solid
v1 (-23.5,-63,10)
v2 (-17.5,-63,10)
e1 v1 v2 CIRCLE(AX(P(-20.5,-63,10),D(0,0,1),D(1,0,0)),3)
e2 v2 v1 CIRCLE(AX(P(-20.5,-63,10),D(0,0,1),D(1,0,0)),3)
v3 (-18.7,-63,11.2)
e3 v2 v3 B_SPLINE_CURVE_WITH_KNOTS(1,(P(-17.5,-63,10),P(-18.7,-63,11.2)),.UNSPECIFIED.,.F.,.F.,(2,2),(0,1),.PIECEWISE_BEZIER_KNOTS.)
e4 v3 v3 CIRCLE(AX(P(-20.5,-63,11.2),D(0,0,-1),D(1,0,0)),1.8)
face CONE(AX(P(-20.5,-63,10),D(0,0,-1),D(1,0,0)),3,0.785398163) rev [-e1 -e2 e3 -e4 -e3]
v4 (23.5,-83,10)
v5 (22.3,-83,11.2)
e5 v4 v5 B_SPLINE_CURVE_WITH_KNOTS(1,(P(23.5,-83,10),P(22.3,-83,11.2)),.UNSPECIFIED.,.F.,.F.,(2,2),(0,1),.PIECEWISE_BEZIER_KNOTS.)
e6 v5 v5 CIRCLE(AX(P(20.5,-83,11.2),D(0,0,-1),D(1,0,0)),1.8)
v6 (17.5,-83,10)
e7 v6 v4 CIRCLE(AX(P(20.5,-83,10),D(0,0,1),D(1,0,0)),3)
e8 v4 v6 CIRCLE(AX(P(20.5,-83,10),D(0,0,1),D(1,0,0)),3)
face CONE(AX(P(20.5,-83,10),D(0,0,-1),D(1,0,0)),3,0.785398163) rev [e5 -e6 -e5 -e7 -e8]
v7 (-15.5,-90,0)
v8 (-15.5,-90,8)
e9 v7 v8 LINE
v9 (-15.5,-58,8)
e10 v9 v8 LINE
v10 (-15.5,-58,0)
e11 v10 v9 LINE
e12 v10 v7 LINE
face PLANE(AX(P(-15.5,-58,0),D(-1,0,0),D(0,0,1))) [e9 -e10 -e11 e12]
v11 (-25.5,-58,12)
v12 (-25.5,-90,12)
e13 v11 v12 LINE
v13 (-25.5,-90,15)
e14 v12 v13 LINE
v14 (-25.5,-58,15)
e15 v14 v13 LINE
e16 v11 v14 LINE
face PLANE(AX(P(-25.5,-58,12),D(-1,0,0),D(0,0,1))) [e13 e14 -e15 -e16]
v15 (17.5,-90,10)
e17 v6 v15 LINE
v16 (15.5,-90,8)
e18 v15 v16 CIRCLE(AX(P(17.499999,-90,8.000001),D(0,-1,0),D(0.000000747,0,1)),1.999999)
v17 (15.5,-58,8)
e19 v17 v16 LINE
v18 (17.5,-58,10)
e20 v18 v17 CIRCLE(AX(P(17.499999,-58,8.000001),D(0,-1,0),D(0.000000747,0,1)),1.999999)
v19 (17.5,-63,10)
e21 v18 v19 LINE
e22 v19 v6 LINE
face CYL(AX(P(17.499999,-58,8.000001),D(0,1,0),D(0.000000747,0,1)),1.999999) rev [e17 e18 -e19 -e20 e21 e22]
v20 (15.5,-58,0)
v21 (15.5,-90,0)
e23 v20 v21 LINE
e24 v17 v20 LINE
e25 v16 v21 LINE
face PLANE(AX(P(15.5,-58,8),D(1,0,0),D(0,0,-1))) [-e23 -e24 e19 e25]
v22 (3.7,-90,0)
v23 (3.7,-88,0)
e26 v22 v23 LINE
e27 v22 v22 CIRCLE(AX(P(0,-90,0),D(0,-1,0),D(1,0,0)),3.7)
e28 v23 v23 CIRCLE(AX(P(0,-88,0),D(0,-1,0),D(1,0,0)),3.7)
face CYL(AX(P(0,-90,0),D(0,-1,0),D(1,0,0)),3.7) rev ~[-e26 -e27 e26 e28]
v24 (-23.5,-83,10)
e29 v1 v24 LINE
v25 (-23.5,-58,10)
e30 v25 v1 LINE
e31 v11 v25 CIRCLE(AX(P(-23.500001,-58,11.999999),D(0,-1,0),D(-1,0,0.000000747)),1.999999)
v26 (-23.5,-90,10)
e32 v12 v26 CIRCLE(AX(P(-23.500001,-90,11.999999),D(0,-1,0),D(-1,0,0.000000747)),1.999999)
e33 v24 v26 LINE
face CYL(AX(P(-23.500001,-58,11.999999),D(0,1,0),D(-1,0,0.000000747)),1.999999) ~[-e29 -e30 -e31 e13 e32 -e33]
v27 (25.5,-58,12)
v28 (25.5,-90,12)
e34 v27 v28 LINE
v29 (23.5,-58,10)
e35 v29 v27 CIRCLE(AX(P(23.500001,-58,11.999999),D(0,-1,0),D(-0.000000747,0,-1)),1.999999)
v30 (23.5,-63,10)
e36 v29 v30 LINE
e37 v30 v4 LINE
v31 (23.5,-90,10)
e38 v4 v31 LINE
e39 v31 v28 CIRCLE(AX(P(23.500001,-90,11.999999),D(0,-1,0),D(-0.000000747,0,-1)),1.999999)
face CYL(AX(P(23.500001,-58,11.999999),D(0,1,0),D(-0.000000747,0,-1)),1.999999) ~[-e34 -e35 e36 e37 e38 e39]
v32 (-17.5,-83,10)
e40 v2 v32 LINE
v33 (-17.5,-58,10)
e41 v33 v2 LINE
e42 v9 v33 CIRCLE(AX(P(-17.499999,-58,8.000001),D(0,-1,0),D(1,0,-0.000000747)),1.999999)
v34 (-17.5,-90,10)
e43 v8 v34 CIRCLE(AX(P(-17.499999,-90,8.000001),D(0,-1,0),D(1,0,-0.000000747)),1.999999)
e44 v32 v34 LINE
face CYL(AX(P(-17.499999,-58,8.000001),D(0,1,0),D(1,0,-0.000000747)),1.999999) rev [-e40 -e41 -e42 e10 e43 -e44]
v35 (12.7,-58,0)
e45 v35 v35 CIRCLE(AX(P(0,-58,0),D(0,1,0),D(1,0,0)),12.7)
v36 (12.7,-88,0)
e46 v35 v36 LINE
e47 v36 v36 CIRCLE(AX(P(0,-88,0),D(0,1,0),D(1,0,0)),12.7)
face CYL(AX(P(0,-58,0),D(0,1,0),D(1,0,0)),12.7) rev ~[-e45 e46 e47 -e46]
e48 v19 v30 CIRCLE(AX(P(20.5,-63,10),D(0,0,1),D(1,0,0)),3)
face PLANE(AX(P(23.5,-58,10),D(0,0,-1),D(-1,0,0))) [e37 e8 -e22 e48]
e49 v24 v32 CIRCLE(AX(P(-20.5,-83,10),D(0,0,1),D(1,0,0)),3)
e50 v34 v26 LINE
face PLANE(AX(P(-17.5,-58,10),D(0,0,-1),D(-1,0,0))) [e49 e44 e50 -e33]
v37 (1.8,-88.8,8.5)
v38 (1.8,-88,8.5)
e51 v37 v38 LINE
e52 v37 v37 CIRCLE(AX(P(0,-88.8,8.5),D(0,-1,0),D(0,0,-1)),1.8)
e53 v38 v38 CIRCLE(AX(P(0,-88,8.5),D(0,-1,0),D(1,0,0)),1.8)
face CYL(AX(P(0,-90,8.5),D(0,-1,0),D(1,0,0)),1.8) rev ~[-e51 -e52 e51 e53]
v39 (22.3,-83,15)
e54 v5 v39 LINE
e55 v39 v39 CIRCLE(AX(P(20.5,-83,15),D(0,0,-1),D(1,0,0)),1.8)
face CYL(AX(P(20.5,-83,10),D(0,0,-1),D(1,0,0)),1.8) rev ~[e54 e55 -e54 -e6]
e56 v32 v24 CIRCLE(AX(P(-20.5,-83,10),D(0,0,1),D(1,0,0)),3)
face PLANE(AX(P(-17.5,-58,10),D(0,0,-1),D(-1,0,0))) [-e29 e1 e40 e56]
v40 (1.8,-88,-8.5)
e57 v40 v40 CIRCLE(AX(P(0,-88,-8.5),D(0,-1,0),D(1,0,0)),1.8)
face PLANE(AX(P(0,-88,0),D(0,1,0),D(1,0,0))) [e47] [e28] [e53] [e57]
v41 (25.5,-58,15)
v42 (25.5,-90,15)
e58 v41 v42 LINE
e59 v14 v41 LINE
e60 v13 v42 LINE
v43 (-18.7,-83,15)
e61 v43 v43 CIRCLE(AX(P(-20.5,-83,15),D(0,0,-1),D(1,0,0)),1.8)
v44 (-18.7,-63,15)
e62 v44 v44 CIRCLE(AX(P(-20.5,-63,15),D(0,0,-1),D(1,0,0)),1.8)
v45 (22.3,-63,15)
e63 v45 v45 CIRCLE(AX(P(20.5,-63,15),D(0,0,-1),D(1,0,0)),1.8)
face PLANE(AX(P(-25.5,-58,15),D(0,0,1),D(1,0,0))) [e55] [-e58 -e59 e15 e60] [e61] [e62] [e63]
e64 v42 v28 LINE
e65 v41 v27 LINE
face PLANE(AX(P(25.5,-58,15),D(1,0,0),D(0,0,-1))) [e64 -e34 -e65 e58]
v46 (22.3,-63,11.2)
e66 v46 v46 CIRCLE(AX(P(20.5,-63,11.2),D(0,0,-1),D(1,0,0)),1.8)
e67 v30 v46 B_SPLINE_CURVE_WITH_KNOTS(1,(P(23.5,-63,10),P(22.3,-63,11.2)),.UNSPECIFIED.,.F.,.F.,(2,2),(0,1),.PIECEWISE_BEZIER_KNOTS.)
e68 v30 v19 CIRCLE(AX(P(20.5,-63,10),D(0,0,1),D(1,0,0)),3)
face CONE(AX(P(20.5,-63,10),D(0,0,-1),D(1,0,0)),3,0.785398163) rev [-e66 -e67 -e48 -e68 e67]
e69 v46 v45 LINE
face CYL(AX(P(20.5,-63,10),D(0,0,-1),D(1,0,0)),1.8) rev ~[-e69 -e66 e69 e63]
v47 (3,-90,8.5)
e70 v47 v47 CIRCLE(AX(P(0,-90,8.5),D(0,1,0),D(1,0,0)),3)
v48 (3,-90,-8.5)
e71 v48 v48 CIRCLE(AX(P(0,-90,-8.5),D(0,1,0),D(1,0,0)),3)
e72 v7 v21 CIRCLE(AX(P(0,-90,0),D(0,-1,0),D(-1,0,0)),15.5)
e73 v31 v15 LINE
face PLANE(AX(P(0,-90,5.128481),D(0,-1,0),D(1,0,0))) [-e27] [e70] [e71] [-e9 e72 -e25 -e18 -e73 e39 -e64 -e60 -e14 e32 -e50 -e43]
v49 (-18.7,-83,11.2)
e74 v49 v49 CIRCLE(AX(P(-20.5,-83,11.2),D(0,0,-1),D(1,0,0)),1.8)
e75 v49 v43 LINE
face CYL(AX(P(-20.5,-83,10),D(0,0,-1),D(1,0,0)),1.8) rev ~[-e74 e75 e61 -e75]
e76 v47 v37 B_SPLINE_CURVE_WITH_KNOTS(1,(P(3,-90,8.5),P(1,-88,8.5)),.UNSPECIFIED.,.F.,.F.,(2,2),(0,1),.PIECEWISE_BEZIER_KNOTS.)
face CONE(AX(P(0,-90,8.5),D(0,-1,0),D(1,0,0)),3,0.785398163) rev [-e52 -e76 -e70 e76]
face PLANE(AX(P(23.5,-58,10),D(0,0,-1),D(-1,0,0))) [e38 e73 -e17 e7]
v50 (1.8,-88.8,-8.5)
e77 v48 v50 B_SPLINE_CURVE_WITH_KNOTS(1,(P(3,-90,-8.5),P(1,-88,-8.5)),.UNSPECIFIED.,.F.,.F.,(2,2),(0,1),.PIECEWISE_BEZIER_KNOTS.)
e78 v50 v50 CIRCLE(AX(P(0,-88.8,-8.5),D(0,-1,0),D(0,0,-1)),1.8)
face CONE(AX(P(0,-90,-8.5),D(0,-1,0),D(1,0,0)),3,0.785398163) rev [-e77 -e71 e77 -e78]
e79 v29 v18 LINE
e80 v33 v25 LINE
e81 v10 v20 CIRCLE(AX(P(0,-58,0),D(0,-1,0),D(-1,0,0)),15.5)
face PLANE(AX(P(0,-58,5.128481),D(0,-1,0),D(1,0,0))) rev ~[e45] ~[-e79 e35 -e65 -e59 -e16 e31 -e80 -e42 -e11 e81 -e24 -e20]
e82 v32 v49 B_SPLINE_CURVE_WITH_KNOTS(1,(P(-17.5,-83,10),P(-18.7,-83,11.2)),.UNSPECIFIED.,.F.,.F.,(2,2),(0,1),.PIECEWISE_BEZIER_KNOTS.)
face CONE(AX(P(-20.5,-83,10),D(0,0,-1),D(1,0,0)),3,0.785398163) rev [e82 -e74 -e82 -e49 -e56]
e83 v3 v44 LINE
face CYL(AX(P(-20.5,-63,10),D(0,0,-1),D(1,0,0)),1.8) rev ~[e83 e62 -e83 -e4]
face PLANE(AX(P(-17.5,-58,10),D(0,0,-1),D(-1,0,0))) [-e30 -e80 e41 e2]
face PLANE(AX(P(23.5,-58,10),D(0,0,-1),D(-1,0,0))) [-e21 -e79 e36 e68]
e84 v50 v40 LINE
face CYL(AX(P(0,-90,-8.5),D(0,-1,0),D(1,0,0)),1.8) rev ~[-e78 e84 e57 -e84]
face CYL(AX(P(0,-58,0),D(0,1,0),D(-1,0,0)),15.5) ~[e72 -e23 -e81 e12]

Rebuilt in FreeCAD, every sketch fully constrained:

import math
import FreeCAD as App
import Part
import Sketcher
from FreeCAD import Vector

doc = App.newDocument("Part")
body = doc.addObject("PartDesign::Body", "Body")

# Sketch on XZ plane
sketch1 = body.newObject("Sketcher::SketchObject", "Sketch")
sketch1.AttachmentSupport = (doc.getObject("XZ_Plane"), [""])
sketch1.MapMode = "FlatFace"
sketch1.AttachmentOffset = App.Placement(Vector(0, 0, 60), App.Rotation())
sketch1.addGeometry(Part.ArcOfCircle(Part.Circle(Vector(0, 0, 0), Vector(0, 0, 1), 15.5), math.radians(180), math.radians(360)), False)
sketch1.addGeometry(Part.LineSegment(Vector(15.5, 0, 0), Vector(15.5, 8, 0)), False)
sketch1.addGeometry(Part.ArcOfCircle(Part.Circle(Vector(17.5, 8, 0), Vector(0, 0, 1), 2), math.radians(90), math.radians(180)), False)
sketch1.addGeometry(Part.LineSegment(Vector(17.5, 10, 0), Vector(23.5, 10, 0)), False)
sketch1.addGeometry(Part.ArcOfCircle(Part.Circle(Vector(23.5, 12, 0), Vector(0, 0, 1), 2), math.radians(-90), math.radians(0)), False)
sketch1.addGeometry(Part.LineSegment(Vector(25.5, 12, 0), Vector(25.5, 15, 0)), False)
sketch1.addGeometry(Part.LineSegment(Vector(25.5, 15, 0), Vector(-25.5, 15, 0)), False)
sketch1.addGeometry(Part.LineSegment(Vector(-25.5, 15, 0), Vector(-25.5, 12, 0)), False)
sketch1.addGeometry(Part.ArcOfCircle(Part.Circle(Vector(-23.5, 12, 0), Vector(0, 0, 1), 2), math.radians(180), math.radians(270)), False)
sketch1.addGeometry(Part.LineSegment(Vector(-23.5, 10, 0), Vector(-17.5, 10, 0)), False)
sketch1.addGeometry(Part.ArcOfCircle(Part.Circle(Vector(-17.5, 8, 0), Vector(0, 0, 1), 2), math.radians(0), math.radians(90)), False)
sketch1.addGeometry(Part.LineSegment(Vector(-15.5, 8, 0), Vector(-15.5, 0, 0)), False)
sketch1.addConstraint(Sketcher.Constraint("Tangent", 0, 2, 1, 1))
sketch1.addConstraint(Sketcher.Constraint("Tangent", 1, 2, 2, 2))
sketch1.addConstraint(Sketcher.Constraint("Tangent", 2, 1, 3, 1))
sketch1.addConstraint(Sketcher.Constraint("Tangent", 3, 2, 4, 1))
sketch1.addConstraint(Sketcher.Constraint("Tangent", 4, 2, 5, 1))
sketch1.addConstraint(Sketcher.Constraint("Coincident", 5, 2, 6, 1))
sketch1.addConstraint(Sketcher.Constraint("Coincident", 6, 2, 7, 1))
sketch1.addConstraint(Sketcher.Constraint("Tangent", 7, 2, 8, 1))
sketch1.addConstraint(Sketcher.Constraint("Tangent", 8, 2, 9, 1))
sketch1.addConstraint(Sketcher.Constraint("Tangent", 9, 2, 10, 2))
sketch1.addConstraint(Sketcher.Constraint("Tangent", 10, 1, 11, 1))
sketch1.addConstraint(Sketcher.Constraint("Tangent", 11, 2, 0, 1))
sketch1.addConstraint(Sketcher.Constraint("Vertical", 1))
sketch1.addConstraint(Sketcher.Constraint("Horizontal", 3))
sketch1.addConstraint(Sketcher.Constraint("Vertical", 5))
sketch1.addConstraint(Sketcher.Constraint("Horizontal", 6))
sketch1.addConstraint(Sketcher.Constraint("Vertical", 7))
sketch1.addConstraint(Sketcher.Constraint("Horizontal", 9))
sketch1.addConstraint(Sketcher.Constraint("Vertical", 11))
sketch1.addConstraint(Sketcher.Constraint("Coincident", 0, 3, -1, 1))
sketch1.addConstraint(Sketcher.Constraint("Equal", 2, 4))
sketch1.addConstraint(Sketcher.Constraint("Equal", 4, 8))
sketch1.addConstraint(Sketcher.Constraint("Equal", 8, 10))
sketch1.addConstraint(Sketcher.Constraint("Symmetric", 4, 3, 8, 3, -2))
sketch1.addConstraint(Sketcher.Constraint("Radius", 2, 1.999999))
sketch1.addConstraint(Sketcher.Constraint("Radius", 0, 15.5))
sketch1.addConstraint(Sketcher.Constraint("DistanceX", 3, 1, 3, 2, 6.0))
sketch1.addConstraint(Sketcher.Constraint("DistanceY", 1, 1, 1, 2, 8.0))
sketch1.addConstraint(Sketcher.Constraint("DistanceY", 5, 1, 5, 2, 3.0))
pad1 = body.newObject("PartDesign::Pad", "Pad")
pad1.Profile = sketch1
pad1.Length = 32

# Sketch on XZ plane
sketch2 = body.newObject("Sketcher::SketchObject", "Sketch001")
sketch2.AttachmentSupport = (doc.getObject("XZ_Plane"), [""])
sketch2.MapMode = "FlatFace"
sketch2.AttachmentOffset = App.Placement(Vector(0, 0, 60), App.Rotation())
sketch2.addGeometry(Part.Circle(Vector(0, 0, 0), Vector(0, 0, 1), 13), False)
sketch2.addConstraint(Sketcher.Constraint("Coincident", 0, 3, -1, 1))
sketch2.addConstraint(Sketcher.Constraint("Diameter", 0, 25.4))
pocket1 = body.newObject("PartDesign::Pocket", "Pocket")
pocket1.Profile = sketch2
pocket1.Length = 30
pocket1.Reversed = True

# Sketch on XZ plane
sketch3 = body.newObject("Sketcher::SketchObject", "Sketch002")
sketch3.AttachmentSupport = (doc.getObject("XZ_Plane"), [""])
sketch3.MapMode = "FlatFace"
sketch3.AttachmentOffset = App.Placement(Vector(0, 0, 92), App.Rotation())
sketch3.addGeometry(Part.Circle(Vector(0, 8.5, 0), Vector(0, 0, 1), 1.8), False)
sketch3.addGeometry(Part.Circle(Vector(0, -8.5, 0), Vector(0, 0, 1), 1.8), False)
sketch3.addGeometry(Part.Circle(Vector(0, 0, 0), Vector(0, 0, 1), 3.7), False)
sketch3.addConstraint(Sketcher.Constraint("Coincident", 2, 3, -1, 1))
sketch3.addConstraint(Sketcher.Constraint("Equal", 0, 1))
sketch3.addConstraint(Sketcher.Constraint("Symmetric", 0, 3, 1, 3, -1, 1))
sketch3.addConstraint(Sketcher.Constraint("PointOnObject", 0, 3, -2))
sketch3.addConstraint(Sketcher.Constraint("Diameter", 0, 3.6))
sketch3.addConstraint(Sketcher.Constraint("Diameter", 2, 7.4))
sketch3.addConstraint(Sketcher.Constraint("DistanceY", 1, 3, 0, 3, 17.0))
pocket2 = body.newObject("PartDesign::Pocket", "Pocket001")
pocket2.Profile = sketch3
pocket2.Length = 2

# Sketch on XY plane
sketch4 = body.newObject("Sketcher::SketchObject", "Sketch003")
sketch4.AttachmentSupport = (doc.getObject("XY_Plane"), [""])
sketch4.MapMode = "FlatFace"
sketch4.AttachmentOffset = App.Placement(Vector(0, 0, 10), App.Rotation())
sketch4.addGeometry(Part.Circle(Vector(-20.5, -85, 0), Vector(0, 0, 1), 1.8), False)
sketch4.addGeometry(Part.Circle(Vector(-20.5, -65, 0), Vector(0, 0, 1), 1.8), False)
sketch4.addGeometry(Part.Circle(Vector(20.5, -65, 0), Vector(0, 0, 1), 1.8), False)
sketch4.addGeometry(Part.Circle(Vector(20.5, -85, 0), Vector(0, 0, 1), 1.8), False)
sketch4.addConstraint(Sketcher.Constraint("Equal", 0, 1))
sketch4.addConstraint(Sketcher.Constraint("Equal", 1, 2))
sketch4.addConstraint(Sketcher.Constraint("Equal", 2, 3))
sketch4.addConstraint(Sketcher.Constraint("Symmetric", 1, 3, 2, 3, -2))
sketch4.addConstraint(Sketcher.Constraint("Symmetric", 0, 3, 3, 3, -2))
sketch4.addConstraint(Sketcher.Constraint("Vertical", 0, 3, 1, 3))
sketch4.addConstraint(Sketcher.Constraint("Diameter", 0, 3.6))
sketch4.addConstraint(Sketcher.Constraint("DistanceY", 0, 3, -1, 1, 85.0))
sketch4.addConstraint(Sketcher.Constraint("DistanceY", 1, 3, -1, 1, 65.0))
sketch4.addConstraint(Sketcher.Constraint("DistanceX", 1, 3, 2, 3, 41.0))
pocket3 = body.newObject("PartDesign::Pocket", "Pocket002")
pocket3.Profile = sketch4
pocket3.Type = "ThroughAll"
pocket3.Reversed = True

# Sketch on XY plane
sketch5 = body.newObject("Sketcher::SketchObject", "Sketch004")
sketch5.AttachmentSupport = (doc.getObject("XY_Plane"), [""])
sketch5.MapMode = "FlatFace"
sketch5.AttachmentOffset = App.Placement(Vector(0, 0, 10), App.Rotation())
sketch5.addGeometry(Part.Circle(Vector(-20.5, -85, 0), Vector(0, 0, 1), 3), False)
sketch5.addGeometry(Part.Circle(Vector(20.5, -85, 0), Vector(0, 0, 1), 3), False)
sketch5.addGeometry(Part.Circle(Vector(20.5, -65, 0), Vector(0, 0, 1), 3), False)
sketch5.addGeometry(Part.Circle(Vector(-20.5, -65, 0), Vector(0, 0, 1), 3), False)
sketch5.addConstraint(Sketcher.Constraint("Equal", 0, 1))
sketch5.addConstraint(Sketcher.Constraint("Equal", 1, 2))
sketch5.addConstraint(Sketcher.Constraint("Equal", 2, 3))
sketch5.addConstraint(Sketcher.Constraint("Symmetric", 0, 3, 1, 3, -2))
sketch5.addConstraint(Sketcher.Constraint("Symmetric", 2, 3, 3, 3, -2))
sketch5.addConstraint(Sketcher.Constraint("Vertical", 1, 3, 2, 3))
sketch5.addConstraint(Sketcher.Constraint("Diameter", 0, 6.0))
sketch5.addConstraint(Sketcher.Constraint("DistanceY", 0, 3, -1, 1, 85.0))
sketch5.addConstraint(Sketcher.Constraint("DistanceY", 2, 3, -1, 1, 65.0))
sketch5.addConstraint(Sketcher.Constraint("DistanceX", 0, 3, 1, 3, 41.0))
pocket4 = body.newObject("PartDesign::Pocket", "Pocket003")
pocket4.Profile = sketch5
pocket4.Length = 1.2
pocket4.Reversed = True
pocket4.TaperAngle = -45

# Sketch on XZ plane
sketch6 = body.newObject("Sketcher::SketchObject", "Sketch005")
sketch6.AttachmentSupport = (doc.getObject("XZ_Plane"), [""])
sketch6.MapMode = "FlatFace"
sketch6.AttachmentOffset = App.Placement(Vector(0, 0, 92), App.Rotation())
sketch6.addGeometry(Part.Circle(Vector(0, 8.5, 0), Vector(0, 0, 1), 3), False)
sketch6.addGeometry(Part.Circle(Vector(0, -8.5, 0), Vector(0, 0, 1), 3), False)
sketch6.addConstraint(Sketcher.Constraint("Equal", 0, 1))
sketch6.addConstraint(Sketcher.Constraint("Symmetric", 0, 3, 1, 3, -1, 1))
sketch6.addConstraint(Sketcher.Constraint("PointOnObject", 0, 3, -2))
sketch6.addConstraint(Sketcher.Constraint("Diameter", 0, 6.0))
sketch6.addConstraint(Sketcher.Constraint("DistanceY", 1, 3, 0, 3, 17.0))
pocket5 = body.newObject("PartDesign::Pocket", "Pocket004")
pocket5.Profile = sketch6
pocket5.Length = 2
pocket5.TaperAngle = -45
body2 = doc.addObject("PartDesign::Body", "Body001")
doc.recompute()

body.Placement = App.Placement(Vector(0, 2, 0), App.Rotation(Vector(0, 0, 1), 0))
boolean = body2.newObject("PartDesign::Boolean", "Boolean")
boolean.Type = "Fuse"
boolean.addObjects([body])

doc.recompute()
